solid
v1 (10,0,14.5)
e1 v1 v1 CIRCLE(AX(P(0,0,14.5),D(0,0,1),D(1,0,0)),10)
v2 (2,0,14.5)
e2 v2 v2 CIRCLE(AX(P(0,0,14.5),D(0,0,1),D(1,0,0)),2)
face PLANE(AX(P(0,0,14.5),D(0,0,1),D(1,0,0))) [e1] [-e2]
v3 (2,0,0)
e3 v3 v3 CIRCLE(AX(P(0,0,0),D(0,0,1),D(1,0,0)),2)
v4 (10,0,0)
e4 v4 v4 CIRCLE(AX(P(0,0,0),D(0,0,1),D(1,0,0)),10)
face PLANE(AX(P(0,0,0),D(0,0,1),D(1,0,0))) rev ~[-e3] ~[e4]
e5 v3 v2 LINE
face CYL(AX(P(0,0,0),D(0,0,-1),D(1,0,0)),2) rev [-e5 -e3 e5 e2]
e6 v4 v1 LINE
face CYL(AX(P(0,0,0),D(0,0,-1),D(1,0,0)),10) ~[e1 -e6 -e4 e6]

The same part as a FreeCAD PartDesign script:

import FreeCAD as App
import Part
import Sketcher
Q = App.Units.Quantity

doc = App.newDocument("Part")
body = doc.addObject("PartDesign::Body", "Body")

# Sketch on XY plane
sketch1 = doc.addObject("Sketcher::SketchObject", "Sketch")
body.addObject(sketch1)
sketch1.AttachmentSupport = (doc.XY_Plane, [""])
sketch1.MapMode = "FlatFace"
sketch1.addGeometry([
    Part.Circle(App.Vector(0, 0, 0), App.Vector(0, 0, 1), 10),
    Part.Circle(App.Vector(0, 0, 0), App.Vector(0, 0, 1), 2),
], False)
sketch1.addConstraint([
    Sketcher.Constraint("Coincident", 0, 3, -1, 1),
    Sketcher.Constraint("Coincident", 1, 3, -1, 1),
    Sketcher.Constraint("Diameter", 0, Q("20 mm")),
    Sketcher.Constraint("Diameter", 1, Q("4 mm")),
])
pad1 = doc.addObject("PartDesign::Pad", "Pad")
body.addObject(pad1)
pad1.Profile = sketch1
pad1.Length = 14.5

doc.recompute()
